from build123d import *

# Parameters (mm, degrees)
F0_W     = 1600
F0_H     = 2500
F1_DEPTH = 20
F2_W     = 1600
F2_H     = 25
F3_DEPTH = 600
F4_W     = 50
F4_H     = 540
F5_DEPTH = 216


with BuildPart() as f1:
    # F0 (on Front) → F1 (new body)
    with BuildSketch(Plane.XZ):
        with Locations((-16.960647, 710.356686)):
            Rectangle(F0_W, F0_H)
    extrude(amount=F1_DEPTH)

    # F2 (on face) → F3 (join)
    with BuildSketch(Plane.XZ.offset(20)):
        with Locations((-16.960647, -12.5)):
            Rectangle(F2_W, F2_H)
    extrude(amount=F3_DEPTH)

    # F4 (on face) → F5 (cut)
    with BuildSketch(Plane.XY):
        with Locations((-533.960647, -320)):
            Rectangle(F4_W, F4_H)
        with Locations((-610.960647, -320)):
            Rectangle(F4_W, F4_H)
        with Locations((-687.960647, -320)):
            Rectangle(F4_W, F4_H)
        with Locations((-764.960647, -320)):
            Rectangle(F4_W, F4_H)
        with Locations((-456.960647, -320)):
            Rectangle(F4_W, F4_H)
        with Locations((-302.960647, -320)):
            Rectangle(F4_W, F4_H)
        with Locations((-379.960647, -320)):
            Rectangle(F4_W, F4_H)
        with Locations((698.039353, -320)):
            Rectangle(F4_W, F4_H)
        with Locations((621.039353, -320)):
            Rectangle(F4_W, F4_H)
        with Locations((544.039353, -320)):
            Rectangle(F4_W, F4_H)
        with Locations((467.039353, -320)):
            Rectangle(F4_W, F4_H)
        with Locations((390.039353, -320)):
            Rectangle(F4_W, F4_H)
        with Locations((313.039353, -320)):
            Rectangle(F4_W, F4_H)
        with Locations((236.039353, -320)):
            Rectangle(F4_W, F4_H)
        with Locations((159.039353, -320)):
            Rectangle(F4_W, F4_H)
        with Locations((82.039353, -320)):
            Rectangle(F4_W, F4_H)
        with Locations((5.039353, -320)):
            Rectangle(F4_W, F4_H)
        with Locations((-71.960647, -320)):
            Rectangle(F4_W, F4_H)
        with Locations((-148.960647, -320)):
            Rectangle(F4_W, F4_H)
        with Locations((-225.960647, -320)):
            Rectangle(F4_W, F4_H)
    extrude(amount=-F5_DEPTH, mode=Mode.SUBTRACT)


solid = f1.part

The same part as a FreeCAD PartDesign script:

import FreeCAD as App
import Part
import Sketcher
from FreeCAD import Vector


def add_polygon(sketch, points):
    """Adds a closed chain of lines whose ends are joined by coincident constraints."""
    first, n = sketch.GeometryCount, len(points)
    for a, b in zip(points, points[1:] + points[:1]):
        sketch.addGeometry(Part.LineSegment(App.Vector(*a, 0), App.Vector(*b, 0)), False)
    for i in range(n):
        sketch.addConstraint(Sketcher.Constraint("Coincident", first + i, 2, first + (i + 1) % n, 1))

doc = App.newDocument("Part")
body = doc.addObject("PartDesign::Body", "Body")

sketch1 = body.newObject("Sketcher::SketchObject", "Sketch")
sketch1.AttachmentSupport = (doc.getObject("XZ_Plane"), [""])
sketch1.MapMode = "FlatFace"
add_polygon(sketch1, [(-817, 1960), (-817, -540), (783, -540), (783, 1960)])
sketch1.addConstraint(Sketcher.Constraint("Vertical", 0))
sketch1.addConstraint(Sketcher.Constraint("Horizontal", 1))
sketch1.addConstraint(Sketcher.Constraint("Vertical", 2))
sketch1.addConstraint(Sketcher.Constraint("Horizontal", 3))
sketch1.addConstraint(Sketcher.Constraint("DistanceX", 1, 1, 1, 2, 1600.0))
sketch1.addConstraint(Sketcher.Constraint("DistanceY", 0, 2, 0, 1, 2500.0))
sketch1.addConstraint(Sketcher.Constraint("DistanceX", 0, 2, -1, 1, 816.960647))
sketch1.addConstraint(Sketcher.Constraint("DistanceY", 0, 2, -1, 1, 539.643314))
pad1 = body.newObject("PartDesign::Pad", "Pad")
pad1.Profile = sketch1
pad1.Length = 20

sketch2 = body.newObject("Sketcher::SketchObject", "Sketch001")
sketch2.AttachmentSupport = (doc.getObject("XZ_Plane"), [""])
sketch2.MapMode = "FlatFace"
sketch2.AttachmentOffset = App.Placement(Vector(0, 0, 20), App.Rotation())
add_polygon(sketch2, [(-817, 0), (-817, -25), (783, -25), (783, 0)])
sketch2.addConstraint(Sketcher.Constraint("Vertical", 0))
sketch2.addConstraint(Sketcher.Constraint("Horizontal", 1))
sketch2.addConstraint(Sketcher.Constraint("Vertical", 2))
sketch2.addConstraint(Sketcher.Constraint("Horizontal", 3))
sketch2.addConstraint(Sketcher.Constraint("PointOnObject", 2, 2, -1))
sketch2.addConstraint(Sketcher.Constraint("DistanceX", 1, 1, 1, 2, 1600.0))
sketch2.addConstraint(Sketcher.Constraint("DistanceY", 0, 2, 0, 1, 25.0))
sketch2.addConstraint(Sketcher.Constraint("DistanceX", 0, 2, -1, 1, 816.960647))
pad2 = body.newObject("PartDesign::Pad", "Pad001")
pad2.Profile = sketch2
pad2.Length = 600

sketch3 = body.newObject("Sketcher::SketchObject", "Sketch002")
sketch3.AttachmentSupport = (doc.getObject("XY_Plane"), [""])
sketch3.MapMode = "FlatFace"
add_polygon(sketch3, [(-559, -50), (-559, -590), (-509, -590), (-509, -50)])
add_polygon(sketch3, [(-636, -50), (-636, -590), (-586, -590), (-586, -50)])
add_polygon(sketch3, [(-713, -50), (-713, -590), (-663, -590), (-663, -50)])
add_polygon(sketch3, [(-790, -50), (-790, -590), (-740, -590), (-740, -50)])
add_polygon(sketch3, [(-482, -50), (-482, -590), (-432, -590), (-432, -50)])
add_polygon(sketch3, [(-328, -50), (-328, -590), (-278, -590), (-278, -50)])
add_polygon(sketch3, [(-405, -50), (-405, -590), (-355, -590), (-355, -50)])
add_polygon(sketch3, [(673, -50), (673, -590), (723, -590), (723, -50)])
add_polygon(sketch3, [(596, -50), (596, -590), (646, -590), (646, -50)])
add_polygon(sketch3, [(519, -50), (519, -590), (569, -590), (569, -50)])
add_polygon(sketch3, [(442, -50), (442, -590), (492, -590), (492, -50)])
add_polygon(sketch3, [(365, -50), (365, -590), (415, -590), (415, -50)])
add_polygon(sketch3, [(288, -50), (288, -590), (338, -590), (338, -50)])
add_polygon(sketch3, [(211, -50), (211, -590), (261, -590), (261, -50)])
add_polygon(sketch3, [(134, -50), (134, -590), (184, -590), (184, -50)])
add_polygon(sketch3, [(57, -50), (57, -590), (107, -590), (107, -50)])
add_polygon(sketch3, [(-20, -50), (-20, -590), (30, -590), (30, -50)])
add_polygon(sketch3, [(-97, -50), (-97, -590), (-47, -590), (-47, -50)])
add_polygon(sketch3, [(-174, -50), (-174, -590), (-124, -590), (-124, -50)])
add_polygon(sketch3, [(-251, -50), (-251, -590), (-201, -590), (-201, -50)])
sketch3.addConstraint(Sketcher.Constraint("Vertical", 0))
sketch3.addConstraint(Sketcher.Constraint("Horizontal", 1))
sketch3.addConstraint(Sketcher.Constraint("Vertical", 2))
sketch3.addConstraint(Sketcher.Constraint("Horizontal", 3))
sketch3.addConstraint(Sketcher.Constraint("Vertical", 4))
sketch3.addConstraint(Sketcher.Constraint("Horizontal", 5))
sketch3.addConstraint(Sketcher.Constraint("Vertical", 6))
sketch3.addConstraint(Sketcher.Constraint("Horizontal", 7))
sketch3.addConstraint(Sketcher.Constraint("Vertical", 8))
sketch3.addConstraint(Sketcher.Constraint("Horizontal", 9))
sketch3.addConstraint(Sketcher.Constraint("Vertical", 10))
sketch3.addConstraint(Sketcher.Constraint("Horizontal", 11))
sketch3.addConstraint(Sketcher.Constraint("Vertical", 12))
sketch3.addConstraint(Sketcher.Constraint("Horizontal", 13))
sketch3.addConstraint(Sketcher.Constraint("Vertical", 14))
sketch3.addConstraint(Sketcher.Constraint("Horizontal", 15))
sketch3.addConstraint(Sketcher.Constraint("Vertical", 16))
sketch3.addConstraint(Sketcher.Constraint("Horizontal", 17))
sketch3.addConstraint(Sketcher.Constraint("Vertical", 18))
sketch3.addConstraint(Sketcher.Constraint("Horizontal", 19))
sketch3.addConstraint(Sketcher.Constraint("Vertical", 20))
sketch3.addConstraint(Sketcher.Constraint("Horizontal", 21))
sketch3.addConstraint(Sketcher.Constraint("Vertical", 22))
sketch3.addConstraint(Sketcher.Constraint("Horizontal", 23))
sketch3.addConstraint(Sketcher.Constraint("Vertical", 24))
sketch3.addConstraint(Sketcher.Constraint("Horizontal", 25))
sketch3.addConstraint(Sketcher.Constraint("Vertical", 26))
sketch3.addConstraint(Sketcher.Constraint("Horizontal", 27))
sketch3.addConstraint(Sketcher.Constraint("Vertical", 28))
sketch3.addConstraint(Sketcher.Constraint("Horizontal", 29))
sketch3.addConstraint(Sketcher.Constraint("Vertical", 30))
sketch3.addConstraint(Sketcher.Constraint("Horizontal", 31))
sketch3.addConstraint(Sketcher.Constraint("Vertical", 32))
sketch3.addConstraint(Sketcher.Constraint("Horizontal", 33))
sketch3.addConstraint(Sketcher.Constraint("Vertical", 34))
sketch3.addConstraint(Sketcher.Constraint("Horizontal", 35))
sketch3.addConstraint(Sketcher.Constraint("Vertical", 36))
sketch3.addConstraint(Sketcher.Constraint("Horizontal", 37))
sketch3.addConstraint(Sketcher.Constraint("Vertical", 38))
sketch3.addConstraint(Sketcher.Constraint("Horizontal", 39))
sketch3.addConstraint(Sketcher.Constraint("Vertical", 40))
sketch3.addConstraint(Sketcher.Constraint("Horizontal", 41))
sketch3.addConstraint(Sketcher.Constraint("Vertical", 42))
sketch3.addConstraint(Sketcher.Constraint("Horizontal", 43))
sketch3.addConstraint(Sketcher.Constraint("Vertical", 44))
sketch3.addConstraint(Sketcher.Constraint("Horizontal", 45))
sketch3.addConstraint(Sketcher.Constraint("Vertical", 46))
sketch3.addConstraint(Sketcher.Constraint("Horizontal", 47))
sketch3.addConstraint(Sketcher.Constraint("Vertical", 48))
sketch3.addConstraint(Sketcher.Constraint("Horizontal", 49))
sketch3.addConstraint(Sketcher.Constraint("Vertical", 50))
sketch3.addConstraint(Sketcher.Constraint("Horizontal", 51))
sketch3.addConstraint(Sketcher.Constraint("Vertical", 52))
sketch3.addConstraint(Sketcher.Constraint("Horizontal", 53))
sketch3.addConstraint(Sketcher.Constraint("Vertical", 54))
sketch3.addConstraint(Sketcher.Constraint("Horizontal", 55))
sketch3.addConstraint(Sketcher.Constraint("Vertical", 56))
sketch3.addConstraint(Sketcher.Constraint("Horizontal", 57))
sketch3.addConstraint(Sketcher.Constraint("Vertical", 58))
sketch3.addConstraint(Sketcher.Constraint("Horizontal", 59))
sketch3.addConstraint(Sketcher.Constraint("Vertical", 60))
sketch3.addConstraint(Sketcher.Constraint("Horizontal", 61))
sketch3.addConstraint(Sketcher.Constraint("Vertical", 62))
sketch3.addConstraint(Sketcher.Constraint("Horizontal", 63))
sketch3.addConstraint(Sketcher.Constraint("Vertical", 64))
sketch3.addConstraint(Sketcher.Constraint("Horizontal", 65))
sketch3.addConstraint(Sketcher.Constraint("Vertical", 66))
sketch3.addConstraint(Sketcher.Constraint("Horizontal", 67))
sketch3.addConstraint(Sketcher.Constraint("Vertical", 68))
sketch3.addConstraint(Sketcher.Constraint("Horizontal", 69))
sketch3.addConstraint(Sketcher.Constraint("Vertical", 70))
sketch3.addConstraint(Sketcher.Constraint("Horizontal", 71))
sketch3.addConstraint(Sketcher.Constraint("Vertical", 72))
sketch3.addConstraint(Sketcher.Constraint("Horizontal", 73))
sketch3.addConstraint(Sketcher.Constraint("Vertical", 74))
sketch3.addConstraint(Sketcher.Constraint("Horizontal", 75))
sketch3.addConstraint(Sketcher.Constraint("Vertical", 76))
sketch3.addConstraint(Sketcher.Constraint("Horizontal", 77))
sketch3.addConstraint(Sketcher.Constraint("Vertical", 78))
sketch3.addConstraint(Sketcher.Constraint("Horizontal", 79))
sketch3.addConstraint(Sketcher.Constraint("Horizontal", 1, 2, 4, 2))
sketch3.addConstraint(Sketcher.Constraint("Horizontal", 3, 2, 6, 2))
sketch3.addConstraint(Sketcher.Constraint("Horizontal", 5, 2, 8, 2))
sketch3.addConstraint(Sketcher.Constraint("Horizontal", 7, 2, 10, 2))
sketch3.addConstraint(Sketcher.Constraint("Horizontal", 9, 2, 12, 2))
sketch3.addConstraint(Sketcher.Constraint("Horizontal", 11, 2, 14, 2))
sketch3.addConstraint(Sketcher.Constraint("Horizontal", 13, 2, 16, 2))
sketch3.addConstraint(Sketcher.Constraint("Horizontal", 15, 2, 18, 2))
sketch3.addConstraint(Sketcher.Constraint("Horizontal", 17, 2, 20, 2))
sketch3.addConstraint(Sketcher.Constraint("Horizontal", 19, 2, 22, 2))
sketch3.addConstraint(Sketcher.Constraint("Horizontal", 21, 2, 24, 2))
sketch3.addConstraint(Sketcher.Constraint("Horizontal", 23, 2, 26, 2))
sketch3.addConstraint(Sketcher.Constraint("Horizontal", 25, 2, 28, 2))
sketch3.addConstraint(Sketcher.Constraint("Horizontal", 27, 2, 30, 2))
sketch3.addConstraint(Sketcher.Constraint("Horizontal", 29, 2, 32, 2))
sketch3.addConstraint(Sketcher.Constraint("Horizontal", 31, 2, 34, 2))
sketch3.addConstraint(Sketcher.Constraint("Horizontal", 33, 2, 36, 2))
sketch3.addConstraint(Sketcher.Constraint("Horizontal", 35, 2, 38, 2))
sketch3.addConstraint(Sketcher.Constraint("Horizontal", 37, 2, 40, 2))
sketch3.addConstraint(Sketcher.Constraint("Horizontal", 39, 2, 42, 2))
sketch3.addConstraint(Sketcher.Constraint("Horizontal", 41, 2, 44, 2))
sketch3.addConstraint(Sketcher.Constraint("Horizontal", 43, 2, 46, 2))
sketch3.addConstraint(Sketcher.Constraint("Horizontal", 45, 2, 48, 2))
sketch3.addConstraint(Sketcher.Constraint("Horizontal", 47, 2, 50, 2))
sketch3.addConstraint(Sketcher.Constraint("Horizontal", 49, 2, 52, 2))
sketch3.addConstraint(Sketcher.Constraint("Horizontal", 51, 2, 54, 2))
sketch3.addConstraint(Sketcher.Constraint("Horizontal", 53, 2, 56, 2))
sketch3.addConstraint(Sketcher.Constraint("Horizontal", 55, 2, 58, 2))
sketch3.addConstraint(Sketcher.Constraint("Horizontal", 57, 2, 60, 2))
sketch3.addConstraint(Sketcher.Constraint("Horizontal", 59, 2, 62, 2))
sketch3.addConstraint(Sketcher.Constraint("Horizontal", 61, 2, 64, 2))
sketch3.addConstraint(Sketcher.Constraint("Horizontal", 63, 2, 66, 2))
sketch3.addConstraint(Sketcher.Constraint("Horizontal", 65, 2, 68, 2))
sketch3.addConstraint(Sketcher.Constraint("Horizontal", 67, 2, 70, 2))
sketch3.addConstraint(Sketcher.Constraint("Horizontal", 69, 2, 72, 2))
sketch3.addConstraint(Sketcher.Constraint("Horizontal", 71, 2, 74, 2))
sketch3.addConstraint(Sketcher.Constraint("Horizontal", 73, 2, 76, 2))
sketch3.addConstraint(Sketcher.Constraint("Horizontal", 75, 2, 78, 2))
sketch3.addConstraint(Sketcher.Constraint("Equal", 3, 5))
sketch3.addConstraint(Sketcher.Constraint("Equal", 7, 9))
sketch3.addConstraint(Sketcher.Constraint("Equal", 11, 13))
sketch3.addConstraint(Sketcher.Constraint("Equal", 15, 17))
sketch3.addConstraint(Sketcher.Constraint("Equal", 19, 21))
sketch3.addConstraint(Sketcher.Constraint("Equal", 23, 25))
sketch3.addConstraint(Sketcher.Constraint("Equal", 27, 29))
sketch3.addConstraint(Sketcher.Constraint("Equal", 31, 33))
sketch3.addConstraint(Sketcher.Constraint("Equal", 35, 37))
sketch3.addConstraint(Sketcher.Constraint("Equal", 39, 41))
sketch3.addConstraint(Sketcher.Constraint("Equal", 43, 45))
sketch3.addConstraint(Sketcher.Constraint("Equal", 47, 49))
sketch3.addConstraint(Sketcher.Constraint("Equal", 51, 53))
sketch3.addConstraint(Sketcher.Constraint("Equal", 55, 57))
sketch3.addConstraint(Sketcher.Constraint("Equal", 59, 61))
sketch3.addConstraint(Sketcher.Constraint("Equal", 63, 65))
sketch3.addConstraint(Sketcher.Constraint("Equal", 67, 69))
sketch3.addConstraint(Sketcher.Constraint("Equal", 71, 73))
sketch3.addConstraint(Sketcher.Constraint("Equal", 75, 77))
sketch3.addConstraint(Sketcher.Constraint("DistanceX", 1, 1, 1, 2, 50.0))
sketch3.addConstraint(Sketcher.Constraint("DistanceY", 0, 2, 0, 1, 540.0))
sketch3.addConstraint(Sketcher.Constraint("DistanceY", 0, 2, -1, 1, 590.0))
sketch3.addConstraint(Sketcher.Constraint("DistanceX", 0, 2, -1, 1, 558.960647))
sketch3.addConstraint(Sketcher.Constraint("DistanceX", 4, 2, -1, 1, 635.960647))
sketch3.addConstraint(Sketcher.Constraint("DistanceX", 8, 2, -1, 1, 712.960647))
sketch3.addConstraint(Sketcher.Constraint("DistanceX", 12, 2, -1, 1, 789.960647))
sketch3.addConstraint(Sketcher.Constraint("DistanceX", 16, 2, -1, 1, 481.960647))
sketch3.addConstraint(Sketcher.Constraint("DistanceX", 20, 2, -1, 1, 327.960647))
sketch3.addConstraint(Sketcher.Constraint("DistanceX", 24, 2, -1, 1, 404.960647))
sketch3.addConstraint(Sketcher.Constraint("DistanceX", -1, 1, 28, 2, 673.039353))
sketch3.addConstraint(Sketcher.Constraint("DistanceX", -1, 1, 32, 2, 596.039353))
sketch3.addConstraint(Sketcher.Constraint("DistanceX", -1, 1, 36, 2, 519.039353))
sketch3.addConstraint(Sketcher.Constraint("DistanceX", -1, 1, 40, 2, 442.039353))
sketch3.addConstraint(Sketcher.Constraint("DistanceX", -1, 1, 44, 2, 365.039353))
sketch3.addConstraint(Sketcher.Constraint("DistanceX", -1, 1, 48, 2, 288.039353))
sketch3.addConstraint(Sketcher.Constraint("DistanceX", -1, 1, 52, 2, 211.039353))
sketch3.addConstraint(Sketcher.Constraint("DistanceX", -1, 1, 56, 2, 134.039353))
sketch3.addConstraint(Sketcher.Constraint("DistanceX", -1, 1, 60, 2, 57.039353))
sketch3.addConstraint(Sketcher.Constraint("DistanceX", 64, 2, -1, 1, 19.960647))
sketch3.addConstraint(Sketcher.Constraint("DistanceX", 68, 2, -1, 1, 96.960647))
sketch3.addConstraint(Sketcher.Constraint("DistanceX", 72, 2, -1, 1, 173.960647))
sketch3.addConstraint(Sketcher.Constraint("DistanceX", 76, 2, -1, 1, 250.960647))
pocket1 = body.newObject("PartDesign::Pocket", "Pocket")
pocket1.Profile = sketch3
pocket1.Length = 216

doc.recompute()
